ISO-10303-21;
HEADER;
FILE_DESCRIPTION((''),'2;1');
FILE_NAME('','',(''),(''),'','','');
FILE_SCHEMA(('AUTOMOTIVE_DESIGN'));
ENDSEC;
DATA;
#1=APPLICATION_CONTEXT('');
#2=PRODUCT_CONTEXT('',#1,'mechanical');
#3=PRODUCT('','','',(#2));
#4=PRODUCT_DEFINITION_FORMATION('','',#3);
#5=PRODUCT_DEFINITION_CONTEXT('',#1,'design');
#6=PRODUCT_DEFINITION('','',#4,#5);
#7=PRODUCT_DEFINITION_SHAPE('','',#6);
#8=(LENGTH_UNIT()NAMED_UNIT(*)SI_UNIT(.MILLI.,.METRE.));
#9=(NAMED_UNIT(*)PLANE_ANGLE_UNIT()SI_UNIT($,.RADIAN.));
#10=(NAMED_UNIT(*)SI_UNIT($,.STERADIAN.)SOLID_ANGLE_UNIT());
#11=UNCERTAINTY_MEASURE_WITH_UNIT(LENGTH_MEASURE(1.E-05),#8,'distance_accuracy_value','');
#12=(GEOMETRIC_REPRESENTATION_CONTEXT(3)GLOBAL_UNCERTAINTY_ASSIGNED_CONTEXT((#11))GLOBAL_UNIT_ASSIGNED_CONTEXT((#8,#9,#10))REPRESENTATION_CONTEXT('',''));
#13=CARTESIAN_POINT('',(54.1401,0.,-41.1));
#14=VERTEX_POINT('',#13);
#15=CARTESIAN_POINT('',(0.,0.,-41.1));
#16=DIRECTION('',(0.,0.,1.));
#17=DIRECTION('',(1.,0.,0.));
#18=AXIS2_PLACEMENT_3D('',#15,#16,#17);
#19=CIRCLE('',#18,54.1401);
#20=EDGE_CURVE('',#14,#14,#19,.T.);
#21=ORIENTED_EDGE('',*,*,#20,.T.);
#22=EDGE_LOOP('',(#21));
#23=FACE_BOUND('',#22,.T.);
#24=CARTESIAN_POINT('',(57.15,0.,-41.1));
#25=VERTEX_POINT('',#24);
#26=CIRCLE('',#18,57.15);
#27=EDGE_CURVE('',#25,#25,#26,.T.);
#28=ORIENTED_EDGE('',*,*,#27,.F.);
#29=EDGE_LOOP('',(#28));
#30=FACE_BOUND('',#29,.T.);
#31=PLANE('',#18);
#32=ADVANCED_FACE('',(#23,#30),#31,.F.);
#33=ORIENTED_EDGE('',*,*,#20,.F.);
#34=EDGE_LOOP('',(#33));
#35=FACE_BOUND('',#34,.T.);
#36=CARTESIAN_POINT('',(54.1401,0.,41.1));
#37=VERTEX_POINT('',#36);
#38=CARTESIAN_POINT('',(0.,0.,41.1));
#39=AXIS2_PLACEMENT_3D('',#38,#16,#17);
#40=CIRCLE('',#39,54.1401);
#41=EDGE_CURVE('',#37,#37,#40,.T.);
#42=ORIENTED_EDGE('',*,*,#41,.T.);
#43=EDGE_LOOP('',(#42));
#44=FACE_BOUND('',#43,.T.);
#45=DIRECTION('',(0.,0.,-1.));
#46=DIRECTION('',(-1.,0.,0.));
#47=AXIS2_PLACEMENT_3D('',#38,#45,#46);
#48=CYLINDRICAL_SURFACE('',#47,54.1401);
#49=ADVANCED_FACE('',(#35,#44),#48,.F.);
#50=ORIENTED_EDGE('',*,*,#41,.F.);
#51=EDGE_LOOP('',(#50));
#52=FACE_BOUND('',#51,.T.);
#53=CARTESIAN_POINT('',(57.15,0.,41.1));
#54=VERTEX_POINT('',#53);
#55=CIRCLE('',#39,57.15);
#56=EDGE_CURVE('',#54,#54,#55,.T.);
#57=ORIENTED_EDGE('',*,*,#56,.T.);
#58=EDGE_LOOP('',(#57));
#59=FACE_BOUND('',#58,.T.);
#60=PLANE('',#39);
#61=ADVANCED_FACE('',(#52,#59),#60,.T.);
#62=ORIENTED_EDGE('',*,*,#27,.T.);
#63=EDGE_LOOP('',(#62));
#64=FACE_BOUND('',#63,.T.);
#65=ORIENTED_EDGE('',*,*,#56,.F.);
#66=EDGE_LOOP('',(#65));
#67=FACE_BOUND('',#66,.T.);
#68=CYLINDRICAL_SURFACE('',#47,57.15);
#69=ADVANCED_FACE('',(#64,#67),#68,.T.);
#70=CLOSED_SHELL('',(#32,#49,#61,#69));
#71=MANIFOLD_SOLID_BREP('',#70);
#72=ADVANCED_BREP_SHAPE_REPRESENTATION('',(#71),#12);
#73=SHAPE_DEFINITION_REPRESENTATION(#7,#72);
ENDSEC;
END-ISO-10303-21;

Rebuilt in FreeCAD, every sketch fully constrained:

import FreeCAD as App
import Part
import Sketcher
from FreeCAD import Vector
Q = App.Units.Quantity

doc = App.newDocument("Part")
body = doc.addObject("PartDesign::Body", "Body")

sketch1 = body.newObject("Sketcher::SketchObject", "Sketch")
sketch1.AttachmentSupport = (doc.getObject("XY_Plane"), [""])
sketch1.MapMode = "FlatFace"
sketch1.addGeometry([
    Part.Circle(Vector(0, 0, 0), Vector(0, 0, 1), 57),
    Part.Circle(Vector(0, 0, 0), Vector(0, 0, 1), 54),
], False)
sketch1.addConstraint([
    Sketcher.Constraint("Coincident", 0, 3, -1, 1),
    Sketcher.Constraint("Coincident", 1, 3, -1, 1),
    Sketcher.Constraint("Diameter", 0, Q("4.5 in")),
    Sketcher.Constraint("Diameter", 1, Q("4.263 in")),
])
pad1 = body.newObject("PartDesign::Pad", "Pad")
pad1.Profile = sketch1
pad1.Length = 82.2
pad1.Midplane = True

doc.recompute()
